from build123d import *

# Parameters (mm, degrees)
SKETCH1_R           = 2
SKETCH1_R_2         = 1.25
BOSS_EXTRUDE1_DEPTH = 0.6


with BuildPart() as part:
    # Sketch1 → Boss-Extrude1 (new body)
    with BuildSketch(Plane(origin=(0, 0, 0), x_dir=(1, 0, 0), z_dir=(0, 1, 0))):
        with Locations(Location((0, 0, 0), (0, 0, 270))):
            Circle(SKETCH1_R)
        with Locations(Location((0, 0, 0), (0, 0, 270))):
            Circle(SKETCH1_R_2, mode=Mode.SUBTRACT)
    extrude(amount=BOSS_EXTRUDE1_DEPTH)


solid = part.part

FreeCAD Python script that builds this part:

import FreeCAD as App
import Part
import Sketcher

V = App.Vector
Q = App.Units.Quantity

doc = App.newDocument("Part")
body = doc.addObject("PartDesign::Body", "Body")

# Sketch on XZ plane
sketch1 = body.newObject("Sketcher::SketchObject", "Sketch")
sketch1.AttachmentSupport = (doc.getObject("XZ_Plane"), [""])
sketch1.MapMode = "FlatFace"
sketch1.addGeometry([
    Part.Circle(V(0, 0, 0), V(0, 0, 1), 2),
    Part.Circle(V(0, 0, 0), V(0, 0, 1), 1.2),
], False)
sketch1.addConstraint([
    Sketcher.Constraint("Coincident", 0, 3, -1, 1),
    Sketcher.Constraint("Coincident", 1, 3, -1, 1),
    Sketcher.Constraint("Diameter", 0, Q("4 mm")),
    Sketcher.Constraint("Diameter", 1, Q("2.5 mm")),
])
pad1 = body.newObject("PartDesign::Pad", "Pad")
pad1.Profile = sketch1
pad1.Length = 0.6
pad1.Reversed = True

doc.recompute()
